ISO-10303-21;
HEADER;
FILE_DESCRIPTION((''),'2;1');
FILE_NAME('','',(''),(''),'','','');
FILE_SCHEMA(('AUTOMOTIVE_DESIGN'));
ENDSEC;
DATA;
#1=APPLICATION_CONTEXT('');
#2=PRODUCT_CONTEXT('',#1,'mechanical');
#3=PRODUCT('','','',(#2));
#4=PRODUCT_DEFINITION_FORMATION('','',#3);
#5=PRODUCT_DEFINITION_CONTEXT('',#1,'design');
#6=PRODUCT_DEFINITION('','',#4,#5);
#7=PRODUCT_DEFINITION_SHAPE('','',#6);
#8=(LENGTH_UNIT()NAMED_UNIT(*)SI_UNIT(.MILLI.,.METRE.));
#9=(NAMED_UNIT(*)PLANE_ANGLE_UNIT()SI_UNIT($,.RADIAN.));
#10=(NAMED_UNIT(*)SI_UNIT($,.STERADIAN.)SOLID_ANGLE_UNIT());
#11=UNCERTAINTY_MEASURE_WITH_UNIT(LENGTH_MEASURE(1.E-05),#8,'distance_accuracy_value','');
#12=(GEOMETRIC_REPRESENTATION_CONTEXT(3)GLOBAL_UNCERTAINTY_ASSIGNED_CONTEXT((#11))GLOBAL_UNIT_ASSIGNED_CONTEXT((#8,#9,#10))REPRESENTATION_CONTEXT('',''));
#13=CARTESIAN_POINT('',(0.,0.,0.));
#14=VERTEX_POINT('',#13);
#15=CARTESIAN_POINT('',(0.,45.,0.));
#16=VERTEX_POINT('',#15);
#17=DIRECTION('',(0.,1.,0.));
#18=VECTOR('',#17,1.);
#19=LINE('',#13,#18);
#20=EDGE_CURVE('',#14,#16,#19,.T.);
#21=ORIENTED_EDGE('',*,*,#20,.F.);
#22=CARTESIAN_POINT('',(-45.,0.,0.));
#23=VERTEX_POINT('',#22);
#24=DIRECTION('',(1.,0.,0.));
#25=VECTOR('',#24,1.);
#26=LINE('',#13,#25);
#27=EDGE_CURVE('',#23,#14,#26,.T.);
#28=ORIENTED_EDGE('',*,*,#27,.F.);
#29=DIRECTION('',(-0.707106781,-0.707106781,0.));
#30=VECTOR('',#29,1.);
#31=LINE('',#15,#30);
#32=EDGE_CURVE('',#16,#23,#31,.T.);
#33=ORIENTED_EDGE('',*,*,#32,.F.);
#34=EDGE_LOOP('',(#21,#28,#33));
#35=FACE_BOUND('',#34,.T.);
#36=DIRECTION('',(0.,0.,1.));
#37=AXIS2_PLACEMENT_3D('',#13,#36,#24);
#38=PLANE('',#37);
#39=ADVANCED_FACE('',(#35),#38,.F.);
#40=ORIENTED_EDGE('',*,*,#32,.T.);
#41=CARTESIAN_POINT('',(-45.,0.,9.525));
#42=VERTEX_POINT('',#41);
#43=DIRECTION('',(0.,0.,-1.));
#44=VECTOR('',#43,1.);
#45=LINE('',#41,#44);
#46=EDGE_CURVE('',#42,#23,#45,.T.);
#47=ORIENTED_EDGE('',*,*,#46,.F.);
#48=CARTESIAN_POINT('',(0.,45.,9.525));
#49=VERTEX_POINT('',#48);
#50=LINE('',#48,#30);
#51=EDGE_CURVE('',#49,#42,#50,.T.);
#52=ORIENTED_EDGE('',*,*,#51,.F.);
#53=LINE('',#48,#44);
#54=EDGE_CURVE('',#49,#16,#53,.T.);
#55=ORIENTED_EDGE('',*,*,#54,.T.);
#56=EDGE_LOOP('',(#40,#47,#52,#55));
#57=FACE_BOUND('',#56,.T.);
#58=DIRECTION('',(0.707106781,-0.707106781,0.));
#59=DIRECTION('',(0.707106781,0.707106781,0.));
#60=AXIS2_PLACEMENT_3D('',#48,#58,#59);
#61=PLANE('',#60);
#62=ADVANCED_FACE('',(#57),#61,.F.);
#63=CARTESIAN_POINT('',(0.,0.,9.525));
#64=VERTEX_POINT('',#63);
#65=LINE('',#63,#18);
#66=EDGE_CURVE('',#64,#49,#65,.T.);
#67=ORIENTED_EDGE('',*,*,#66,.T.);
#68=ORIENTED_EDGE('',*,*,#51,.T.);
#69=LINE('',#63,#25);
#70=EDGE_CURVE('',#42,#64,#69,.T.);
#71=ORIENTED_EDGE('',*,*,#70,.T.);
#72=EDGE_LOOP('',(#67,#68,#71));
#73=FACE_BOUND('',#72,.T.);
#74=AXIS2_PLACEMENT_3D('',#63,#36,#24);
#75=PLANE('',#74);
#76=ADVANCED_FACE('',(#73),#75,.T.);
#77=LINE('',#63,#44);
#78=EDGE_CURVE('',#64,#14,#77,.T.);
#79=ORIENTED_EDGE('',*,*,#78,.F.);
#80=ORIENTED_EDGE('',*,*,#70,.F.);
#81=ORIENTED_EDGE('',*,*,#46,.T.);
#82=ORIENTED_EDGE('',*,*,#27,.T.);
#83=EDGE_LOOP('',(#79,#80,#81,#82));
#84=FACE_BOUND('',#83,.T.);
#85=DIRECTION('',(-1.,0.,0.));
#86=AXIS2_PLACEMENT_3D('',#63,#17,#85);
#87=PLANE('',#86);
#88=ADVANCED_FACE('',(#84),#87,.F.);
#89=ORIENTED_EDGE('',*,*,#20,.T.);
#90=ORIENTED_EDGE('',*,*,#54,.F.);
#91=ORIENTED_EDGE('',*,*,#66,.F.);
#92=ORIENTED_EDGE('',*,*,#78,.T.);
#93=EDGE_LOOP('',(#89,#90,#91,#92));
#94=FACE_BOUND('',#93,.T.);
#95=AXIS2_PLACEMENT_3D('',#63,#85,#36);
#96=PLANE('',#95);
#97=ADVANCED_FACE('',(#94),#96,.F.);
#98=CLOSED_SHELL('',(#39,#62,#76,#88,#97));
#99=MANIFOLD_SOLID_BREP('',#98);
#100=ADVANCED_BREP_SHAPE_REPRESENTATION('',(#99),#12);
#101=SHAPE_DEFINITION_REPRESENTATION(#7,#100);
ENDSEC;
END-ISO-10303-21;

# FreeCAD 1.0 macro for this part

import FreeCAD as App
import Part
import Sketcher

V = App.Vector
Q = App.Units.Quantity


def add_polygon(sketch, points):
    """Adds a closed chain of lines whose ends are joined by coincident constraints."""
    first, n = sketch.GeometryCount, len(points)
    for a, b in zip(points, points[1:] + points[:1]):
        sketch.addGeometry(Part.LineSegment(App.Vector(*a, 0), App.Vector(*b, 0)), False)
    for i in range(n):
        sketch.addConstraint(Sketcher.Constraint("Coincident", first + i, 2, first + (i + 1) % n, 1))

doc = App.newDocument("Part")
body = doc.addObject("PartDesign::Body", "Body")

sketch1 = doc.addObject("Sketcher::SketchObject", "Sketch")
body.addObject(sketch1)
sketch1.AttachmentSupport = (doc.XY_Plane, [""])
sketch1.MapMode = "FlatFace"
add_polygon(sketch1, [(-45, 0), (0, 0), (0, 45)])
sketch1.addConstraint(Sketcher.Constraint("Horizontal", 0))
sketch1.addConstraint(Sketcher.Constraint("Vertical", 1))
sketch1.addConstraint(Sketcher.Constraint("Coincident", 0, 2, -1, 1))
sketch1.addConstraint(Sketcher.Constraint("Equal", 0, 1))
sketch1.addConstraint(Sketcher.Constraint("DistanceX", 0, 1, 0, 2, Q("45 mm")))
pad1 = doc.addObject("PartDesign::Pad", "Pad")
body.addObject(pad1)
pad1.Profile = sketch1
pad1.Length = 9.525

doc.recompute()
